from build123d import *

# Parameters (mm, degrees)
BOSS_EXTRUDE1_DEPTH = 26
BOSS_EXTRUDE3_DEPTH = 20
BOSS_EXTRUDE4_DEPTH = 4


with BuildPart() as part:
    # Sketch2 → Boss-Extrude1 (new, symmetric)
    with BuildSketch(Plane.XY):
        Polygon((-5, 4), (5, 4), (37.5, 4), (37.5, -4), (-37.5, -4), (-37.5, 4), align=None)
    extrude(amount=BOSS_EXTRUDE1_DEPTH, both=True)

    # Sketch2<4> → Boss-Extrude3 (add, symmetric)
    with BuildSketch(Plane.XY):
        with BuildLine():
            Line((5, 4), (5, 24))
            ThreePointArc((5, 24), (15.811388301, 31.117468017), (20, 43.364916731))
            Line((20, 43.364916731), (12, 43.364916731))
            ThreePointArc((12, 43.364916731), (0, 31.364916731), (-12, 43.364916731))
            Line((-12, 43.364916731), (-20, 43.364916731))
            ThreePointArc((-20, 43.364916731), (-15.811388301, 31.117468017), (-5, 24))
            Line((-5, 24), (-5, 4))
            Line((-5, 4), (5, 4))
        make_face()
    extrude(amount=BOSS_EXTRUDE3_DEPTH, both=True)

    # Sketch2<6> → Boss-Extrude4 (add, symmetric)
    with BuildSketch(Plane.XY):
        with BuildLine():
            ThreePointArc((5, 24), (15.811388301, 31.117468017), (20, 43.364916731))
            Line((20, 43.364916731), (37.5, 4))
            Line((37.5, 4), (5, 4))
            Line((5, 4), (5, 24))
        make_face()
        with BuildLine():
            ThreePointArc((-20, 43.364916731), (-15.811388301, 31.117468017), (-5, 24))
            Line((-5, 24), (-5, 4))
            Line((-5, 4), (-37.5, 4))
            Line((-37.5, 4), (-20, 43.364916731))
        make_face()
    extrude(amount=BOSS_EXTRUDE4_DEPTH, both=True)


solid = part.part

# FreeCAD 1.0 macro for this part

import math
import FreeCAD as App
import Part
import Sketcher

V = App.Vector
Q = App.Units.Quantity


def add_polygon(sketch, points):
    """Adds a closed chain of lines whose ends are joined by coincident constraints."""
    first, n = sketch.GeometryCount, len(points)
    for a, b in zip(points, points[1:] + points[:1]):
        sketch.addGeometry(Part.LineSegment(App.Vector(*a, 0), App.Vector(*b, 0)), False)
    for i in range(n):
        sketch.addConstraint(Sketcher.Constraint("Coincident", first + i, 2, first + (i + 1) % n, 1))

doc = App.newDocument("Part")
body = doc.addObject("PartDesign::Body", "Body")

# Sketch on XY plane
sketch1 = body.newObject("Sketcher::SketchObject", "Sketch")
sketch1.AttachmentSupport = (doc.getObject("XY_Plane"), [""])
sketch1.MapMode = "FlatFace"
add_polygon(sketch1, [(38, 4), (-38, 4), (-38, -4), (38, -4)])  # lines 0-3
sketch1.addConstraint([
    Sketcher.Constraint("Horizontal", 0),
    Sketcher.Constraint("Vertical", 1),
    Sketcher.Constraint("Horizontal", 2),
    Sketcher.Constraint("Vertical", 3),
    Sketcher.Constraint("Symmetric", 0, 2, 2, 2, -1, 1),
    Sketcher.Constraint("DistanceX", 0, 2, 0, 1, Q("75 mm")),
    Sketcher.Constraint("DistanceY", 1, 2, 1, 1, Q("8 mm")),
])
pad1 = body.newObject("PartDesign::Pad", "Pad")
pad1.Profile = sketch1
pad1.Length = 52
pad1.Midplane = True

# Sketch on XY plane
sketch2 = body.newObject("Sketcher::SketchObject", "Sketch001")
sketch2.AttachmentSupport = (doc.getObject("XY_Plane"), [""])
sketch2.MapMode = "FlatFace"
sketch2.addGeometry([
    Part.LineSegment(V(5, 4, 0), V(5, 24, 0)),  # 0
    Part.ArcOfCircle(Part.Circle(V(0, 43, 0), V(0, 0, 1), 20), math.radians(-76), math.radians(0)),  # 1
    Part.LineSegment(V(20, 43, 0), V(12, 43, 0)),  # 2
    Part.ArcOfCircle(Part.Circle(V(0, 43, 0), V(0, 0, 1), 12), math.radians(180), math.radians(360)),  # 3
    Part.LineSegment(V(-12, 43, 0), V(-20, 43, 0)),  # 4
    Part.ArcOfCircle(Part.Circle(V(0, 43, 0), V(0, 0, 1), 20), math.radians(180), math.radians(256)),  # 5
    Part.LineSegment(V(-5, 24, 0), V(-5, 4, 0)),  # 6
    Part.LineSegment(V(-5, 4, 0), V(5, 4, 0)),  # 7
], False)
sketch2.addConstraint([
    Sketcher.Constraint("Coincident", 0, 2, 1, 1),
    Sketcher.Constraint("Coincident", 1, 2, 2, 1),
    Sketcher.Constraint("Coincident", 2, 2, 3, 2),
    Sketcher.Constraint("Coincident", 3, 1, 4, 1),
    Sketcher.Constraint("Coincident", 4, 2, 5, 1),
    Sketcher.Constraint("Coincident", 5, 2, 6, 1),
    Sketcher.Constraint("Coincident", 6, 2, 7, 1),
    Sketcher.Constraint("Coincident", 7, 2, 0, 1),
    Sketcher.Constraint("Vertical", 0),
    Sketcher.Constraint("Horizontal", 2),
    Sketcher.Constraint("Horizontal", 4),
    Sketcher.Constraint("Vertical", 6),
    Sketcher.Constraint("Horizontal", 7),
    Sketcher.Constraint("Coincident", 3, 3, 1, 3),
    Sketcher.Constraint("Coincident", 5, 3, 1, 3),
    Sketcher.Constraint("Equal", 1, 5),
    Sketcher.Constraint("Symmetric", 2, 2, 3, 1, -2),
    Sketcher.Constraint("Horizontal", 5, 3, 1, 2),
    Sketcher.Constraint("Horizontal", 0, 2, 5, 2),
    Sketcher.Constraint("Radius", 1, Q("20 mm")),
    Sketcher.Constraint("Radius", 3, Q("12 mm")),
    Sketcher.Constraint("DistanceX", 7, 1, 7, 2, Q("10 mm")),
    Sketcher.Constraint("DistanceY", 0, 1, 0, 2, Q("20 mm")),
    Sketcher.Constraint("DistanceY", -1, 1, 0, 2, Q("24 mm")),
])
pad2 = body.newObject("PartDesign::Pad", "Pad001")
pad2.Profile = sketch2
pad2.Length = 40
pad2.Midplane = True

# Sketch on XY plane
sketch3 = body.newObject("Sketcher::SketchObject", "Sketch002")
sketch3.AttachmentSupport = (doc.getObject("XY_Plane"), [""])
sketch3.MapMode = "FlatFace"
sketch3.addGeometry([
    Part.ArcOfCircle(Part.Circle(V(0, 43, 0), V(0, 0, 1), 20), math.radians(-76), math.radians(0)),  # 0
    Part.LineSegment(V(5, 24, 0), V(5, 4, 0)),  # 1
    Part.LineSegment(V(5, 4, 0), V(38, 4, 0)),  # 2
    Part.LineSegment(V(38, 4, 0), V(20, 43, 0)),  # 3
    Part.ArcOfCircle(Part.Circle(V(0, 43, 0), V(0, 0, 1), 20), math.radians(180), math.radians(256)),  # 4
    Part.LineSegment(V(-20, 43, 0), V(-38, 4, 0)),  # 5
    Part.LineSegment(V(-38, 4, 0), V(-5, 4, 0)),  # 6
    Part.LineSegment(V(-5, 4, 0), V(-5, 24, 0)),  # 7
], False)
sketch3.addConstraint([
    Sketcher.Constraint("Coincident", 0, 1, 1, 1),
    Sketcher.Constraint("Coincident", 1, 2, 2, 1),
    Sketcher.Constraint("Coincident", 2, 2, 3, 1),
    Sketcher.Constraint("Coincident", 3, 2, 0, 2),
    Sketcher.Constraint("Coincident", 4, 1, 5, 1),
    Sketcher.Constraint("Coincident", 5, 2, 6, 1),
    Sketcher.Constraint("Coincident", 6, 2, 7, 1),
    Sketcher.Constraint("Coincident", 7, 2, 4, 2),
    Sketcher.Constraint("Vertical", 1),
    Sketcher.Constraint("Horizontal", 2),
    Sketcher.Constraint("Horizontal", 6),
    Sketcher.Constraint("Vertical", 7),
    Sketcher.Constraint("Coincident", 4, 3, 0, 3),
    Sketcher.Constraint("Equal", 0, 4),
    Sketcher.Constraint("Symmetric", 3, 2, 4, 1, -2),
    Sketcher.Constraint("Symmetric", 2, 2, 5, 2, -2),
    Sketcher.Constraint("Horizontal", 4, 3, 3, 2),
    Sketcher.Constraint("Horizontal", 0, 1, 7, 2),
    Sketcher.Constraint("Radius", 0, Q("20 mm")),
    Sketcher.Constraint("DistanceY", 1, 2, 1, 1, Q("20 mm")),
    Sketcher.Constraint("DistanceX", 2, 1, 2, 2, Q("32.5 mm")),
    Sketcher.Constraint("DistanceX", -1, 1, 0, 1, Q("5 mm")),
    Sketcher.Constraint("DistanceY", -1, 1, 0, 1, Q("24 mm")),
])
pad3 = body.newObject("PartDesign::Pad", "Pad002")
pad3.Profile = sketch3
pad3.Length = 8
pad3.Midplane = True

doc.recompute()
